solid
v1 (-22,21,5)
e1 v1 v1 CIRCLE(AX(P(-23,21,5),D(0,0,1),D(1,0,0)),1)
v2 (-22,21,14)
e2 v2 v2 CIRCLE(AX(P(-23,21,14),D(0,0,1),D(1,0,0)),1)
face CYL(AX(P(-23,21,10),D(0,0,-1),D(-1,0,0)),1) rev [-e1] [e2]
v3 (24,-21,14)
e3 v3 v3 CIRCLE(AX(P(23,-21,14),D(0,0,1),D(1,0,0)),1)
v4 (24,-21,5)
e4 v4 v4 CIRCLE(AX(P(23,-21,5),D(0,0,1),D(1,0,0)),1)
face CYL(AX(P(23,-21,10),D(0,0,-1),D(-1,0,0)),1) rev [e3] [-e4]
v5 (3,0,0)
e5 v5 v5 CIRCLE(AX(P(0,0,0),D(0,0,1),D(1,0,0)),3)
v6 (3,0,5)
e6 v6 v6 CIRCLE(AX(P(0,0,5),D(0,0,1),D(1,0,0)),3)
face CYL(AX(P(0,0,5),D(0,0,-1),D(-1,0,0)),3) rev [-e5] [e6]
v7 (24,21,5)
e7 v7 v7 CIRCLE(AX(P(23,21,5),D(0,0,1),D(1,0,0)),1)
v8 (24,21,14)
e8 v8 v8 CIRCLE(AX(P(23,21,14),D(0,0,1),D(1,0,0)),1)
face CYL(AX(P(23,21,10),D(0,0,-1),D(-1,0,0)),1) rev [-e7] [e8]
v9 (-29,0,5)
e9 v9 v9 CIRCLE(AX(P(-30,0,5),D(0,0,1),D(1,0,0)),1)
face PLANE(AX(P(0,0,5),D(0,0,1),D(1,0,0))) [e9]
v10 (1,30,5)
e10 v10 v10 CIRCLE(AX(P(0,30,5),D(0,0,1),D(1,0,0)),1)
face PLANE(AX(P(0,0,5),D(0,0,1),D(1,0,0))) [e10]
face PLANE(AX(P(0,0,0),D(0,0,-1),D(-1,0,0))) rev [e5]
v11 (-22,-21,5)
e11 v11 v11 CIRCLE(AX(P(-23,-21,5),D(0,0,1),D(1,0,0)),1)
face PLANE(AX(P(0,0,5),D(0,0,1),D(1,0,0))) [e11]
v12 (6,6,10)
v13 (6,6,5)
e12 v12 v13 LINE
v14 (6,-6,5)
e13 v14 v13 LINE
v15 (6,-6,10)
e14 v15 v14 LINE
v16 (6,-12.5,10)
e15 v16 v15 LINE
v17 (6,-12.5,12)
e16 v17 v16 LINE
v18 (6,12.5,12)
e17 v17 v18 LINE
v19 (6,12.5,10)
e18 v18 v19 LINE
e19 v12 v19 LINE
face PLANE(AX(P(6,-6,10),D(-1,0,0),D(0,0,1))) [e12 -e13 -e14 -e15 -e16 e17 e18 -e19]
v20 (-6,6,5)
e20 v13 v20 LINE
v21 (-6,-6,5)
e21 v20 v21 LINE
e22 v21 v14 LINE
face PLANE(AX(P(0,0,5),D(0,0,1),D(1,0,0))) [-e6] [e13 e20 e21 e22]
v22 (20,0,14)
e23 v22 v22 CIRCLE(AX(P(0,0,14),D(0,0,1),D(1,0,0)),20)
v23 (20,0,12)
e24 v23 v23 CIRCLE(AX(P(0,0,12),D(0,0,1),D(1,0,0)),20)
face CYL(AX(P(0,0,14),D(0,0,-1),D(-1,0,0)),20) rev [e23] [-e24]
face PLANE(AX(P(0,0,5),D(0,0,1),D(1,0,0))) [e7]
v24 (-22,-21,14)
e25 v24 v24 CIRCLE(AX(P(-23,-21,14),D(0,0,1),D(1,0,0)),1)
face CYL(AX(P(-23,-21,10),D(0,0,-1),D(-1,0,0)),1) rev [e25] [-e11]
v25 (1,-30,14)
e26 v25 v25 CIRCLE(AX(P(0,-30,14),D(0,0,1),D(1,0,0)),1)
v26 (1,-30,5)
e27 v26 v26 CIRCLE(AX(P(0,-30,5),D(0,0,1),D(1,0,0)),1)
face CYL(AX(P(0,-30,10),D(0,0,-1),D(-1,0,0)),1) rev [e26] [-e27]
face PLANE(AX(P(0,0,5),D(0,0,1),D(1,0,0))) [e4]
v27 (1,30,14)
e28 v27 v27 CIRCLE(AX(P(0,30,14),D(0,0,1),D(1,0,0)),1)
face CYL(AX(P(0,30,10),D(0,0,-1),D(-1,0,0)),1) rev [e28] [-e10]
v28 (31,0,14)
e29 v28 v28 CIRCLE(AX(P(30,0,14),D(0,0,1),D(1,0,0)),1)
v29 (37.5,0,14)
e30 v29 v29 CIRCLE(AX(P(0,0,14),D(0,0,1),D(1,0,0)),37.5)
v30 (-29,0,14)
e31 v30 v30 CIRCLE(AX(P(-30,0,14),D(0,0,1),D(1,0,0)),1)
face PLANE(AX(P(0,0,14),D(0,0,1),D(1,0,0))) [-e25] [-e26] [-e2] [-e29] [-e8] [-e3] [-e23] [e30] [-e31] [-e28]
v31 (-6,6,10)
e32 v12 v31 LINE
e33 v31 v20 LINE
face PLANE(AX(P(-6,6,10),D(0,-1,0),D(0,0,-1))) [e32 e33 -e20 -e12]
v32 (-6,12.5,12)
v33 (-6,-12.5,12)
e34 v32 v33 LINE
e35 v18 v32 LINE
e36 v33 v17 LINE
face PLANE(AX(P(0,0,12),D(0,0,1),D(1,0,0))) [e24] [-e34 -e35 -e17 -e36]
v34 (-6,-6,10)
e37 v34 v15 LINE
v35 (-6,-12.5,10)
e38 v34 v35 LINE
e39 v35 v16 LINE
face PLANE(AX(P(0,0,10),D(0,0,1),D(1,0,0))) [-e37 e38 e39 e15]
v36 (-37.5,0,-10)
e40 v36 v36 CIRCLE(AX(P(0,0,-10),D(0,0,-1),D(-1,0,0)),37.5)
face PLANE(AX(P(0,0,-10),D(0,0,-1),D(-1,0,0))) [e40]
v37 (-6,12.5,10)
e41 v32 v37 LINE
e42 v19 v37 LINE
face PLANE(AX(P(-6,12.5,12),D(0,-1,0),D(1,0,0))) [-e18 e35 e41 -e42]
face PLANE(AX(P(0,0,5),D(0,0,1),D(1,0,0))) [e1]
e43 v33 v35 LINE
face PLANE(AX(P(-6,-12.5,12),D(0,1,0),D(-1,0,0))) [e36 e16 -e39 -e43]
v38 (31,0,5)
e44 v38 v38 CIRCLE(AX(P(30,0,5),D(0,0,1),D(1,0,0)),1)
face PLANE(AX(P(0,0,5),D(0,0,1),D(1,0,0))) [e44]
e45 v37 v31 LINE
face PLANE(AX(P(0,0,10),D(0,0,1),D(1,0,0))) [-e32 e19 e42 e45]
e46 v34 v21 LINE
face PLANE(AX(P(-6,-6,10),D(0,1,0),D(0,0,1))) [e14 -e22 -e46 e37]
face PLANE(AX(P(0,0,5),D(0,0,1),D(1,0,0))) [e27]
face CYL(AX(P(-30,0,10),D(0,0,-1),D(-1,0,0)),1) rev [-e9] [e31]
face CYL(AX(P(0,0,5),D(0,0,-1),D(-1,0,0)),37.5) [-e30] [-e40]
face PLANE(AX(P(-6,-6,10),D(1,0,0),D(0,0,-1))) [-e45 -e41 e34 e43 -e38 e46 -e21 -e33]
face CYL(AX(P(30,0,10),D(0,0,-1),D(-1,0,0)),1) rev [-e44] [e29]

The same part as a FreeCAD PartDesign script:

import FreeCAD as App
import Part
import Sketcher


def add_polygon(sketch, points):
    """Adds a closed chain of lines whose ends are joined by coincident constraints."""
    first, n = sketch.GeometryCount, len(points)
    for a, b in zip(points, points[1:] + points[:1]):
        sketch.addGeometry(Part.LineSegment(App.Vector(*a, 0), App.Vector(*b, 0)), False)
    for i in range(n):
        sketch.addConstraint(Sketcher.Constraint("Coincident", first + i, 2, first + (i + 1) % n, 1))

doc = App.newDocument("Part")
body = doc.addObject("PartDesign::Body", "Body")

sketch1 = body.newObject("Sketcher::SketchObject", "Sketch")
sketch1.AttachmentSupport = (doc.getObject("XY_Plane"), [""])
sketch1.MapMode = "FlatFace"
sketch1.addGeometry([
    Part.Circle(App.Vector(0, 0, 0), App.Vector(0, 0, 1), 37.5),
    Part.Circle(App.Vector(0, 0, 0), App.Vector(0, 0, 1), 3),
], False)
sketch1.addConstraint([
    Sketcher.Constraint("Coincident", 0, 3, -1, 1),
    Sketcher.Constraint("Coincident", 1, 3, -1, 1),
    Sketcher.Constraint("Diameter", 0, 75.0),
    Sketcher.Constraint("Diameter", 1, 6.0),
])
pad1 = body.newObject("PartDesign::Pad", "Pad")
pad1.Profile = sketch1
pad1.Length = 5

sketch2 = body.newObject("Sketcher::SketchObject", "Sketch001")
sketch2.AttachmentSupport = (doc.getObject("XY_Plane"), [""])
sketch2.MapMode = "FlatFace"
sketch2.AttachmentOffset = App.Placement(App.Vector(0, 0, -10), App.Rotation())
sketch2.addGeometry(Part.Circle(App.Vector(0, 0, 0), App.Vector(0, 0, 1), 38), False)
sketch2.addConstraint([
    Sketcher.Constraint("Coincident", 0, 3, -1, 1),
    Sketcher.Constraint("Diameter", 0, 75.0),
])
pad2 = body.newObject("PartDesign::Pad", "Pad001")
pad2.Profile = sketch2
pad2.Length = 10

sketch3 = body.newObject("Sketcher::SketchObject", "Sketch002")
sketch3.AttachmentSupport = (doc.getObject("XY_Plane"), [""])
sketch3.MapMode = "FlatFace"
sketch3.AttachmentOffset = App.Placement(App.Vector(0, 0, 5), App.Rotation())
sketch3.addGeometry(Part.Circle(App.Vector(0, 0, 0), App.Vector(0, 0, 1), 37.5), False)
sketch3.addGeometry(Part.Circle(App.Vector(23, 21, 0), App.Vector(0, 0, 1), 1), False)
sketch3.addGeometry(Part.Circle(App.Vector(30, 0, 0), App.Vector(0, 0, 1), 1), False)
sketch3.addGeometry(Part.Circle(App.Vector(0, 30, 0), App.Vector(0, 0, 1), 1), False)
sketch3.addGeometry(Part.Circle(App.Vector(-23, 21, 0), App.Vector(0, 0, 1), 1), False)
sketch3.addGeometry(Part.Circle(App.Vector(23, -21, 0), App.Vector(0, 0, 1), 1), False)
sketch3.addGeometry(Part.Circle(App.Vector(0, -30, 0), App.Vector(0, 0, 1), 1), False)
add_polygon(sketch3, [(6, -6), (-6, -6), (-6, 6), (6, 6)])
sketch3.addGeometry(Part.Circle(App.Vector(-30, 0, 0), App.Vector(0, 0, 1), 1), False)
sketch3.addGeometry(Part.Circle(App.Vector(-23, -21, 0), App.Vector(0, 0, 1), 1), False)
sketch3.addConstraint([
    Sketcher.Constraint("Horizontal", 7),
    Sketcher.Constraint("Vertical", 8),
    Sketcher.Constraint("Horizontal", 9),
    Sketcher.Constraint("Vertical", 10),
    Sketcher.Constraint("Coincident", 0, 3, -1, 1),
    Sketcher.Constraint("Equal", 1, 2),
    Sketcher.Constraint("Equal", 2, 3),
    Sketcher.Constraint("Equal", 3, 4),
    Sketcher.Constraint("Equal", 4, 5),
    Sketcher.Constraint("Equal", 5, 6),
    Sketcher.Constraint("Equal", 6, 11),
    Sketcher.Constraint("Equal", 11, 12),
    Sketcher.Constraint("Symmetric", 4, 3, 5, 3, -1, 1),
    Sketcher.Constraint("Symmetric", 3, 3, 6, 3, -1, 1),
    Sketcher.Constraint("Symmetric", 2, 3, 11, 3, -1, 1),
    Sketcher.Constraint("Symmetric", 1, 3, 12, 3, -1, 1),
    Sketcher.Constraint("Symmetric", 7, 2, 9, 2, -1, 1),
    Sketcher.Constraint("Symmetric", 1, 3, 4, 3, -2),
    Sketcher.Constraint("PointOnObject", 2, 3, -1),
    Sketcher.Constraint("PointOnObject", 3, 3, -2),
    Sketcher.Constraint("Equal", 9, 8),
    Sketcher.Constraint("Diameter", 0, 75.0),
    Sketcher.Constraint("Diameter", 1, 2.0),
    Sketcher.Constraint("DistanceX", 7, 2, 7, 1, 12.0),
    Sketcher.Constraint("DistanceX", -1, 1, 1, 3, 23.0),
    Sketcher.Constraint("DistanceY", -1, 1, 1, 3, 21.0),
    Sketcher.Constraint("DistanceX", -1, 1, 2, 3, 30.0),
    Sketcher.Constraint("DistanceY", -1, 1, 3, 3, 30.0),
])
pad3 = body.newObject("PartDesign::Pad", "Pad002")
pad3.Profile = sketch3
pad3.Length = 5

sketch4 = body.newObject("Sketcher::SketchObject", "Sketch003")
sketch4.AttachmentSupport = (doc.getObject("XY_Plane"), [""])
sketch4.MapMode = "FlatFace"
sketch4.AttachmentOffset = App.Placement(App.Vector(0, 0, 10), App.Rotation())
sketch4.addGeometry(Part.Circle(App.Vector(0, 0, 0), App.Vector(0, 0, 1), 37.5), False)
sketch4.addGeometry(Part.Circle(App.Vector(23, 21, 0), App.Vector(0, 0, 1), 1), False)
sketch4.addGeometry(Part.Circle(App.Vector(30, 0, 0), App.Vector(0, 0, 1), 1), False)
sketch4.addGeometry(Part.Circle(App.Vector(0, 30, 0), App.Vector(0, 0, 1), 1), False)
sketch4.addGeometry(Part.Circle(App.Vector(-23, 21, 0), App.Vector(0, 0, 1), 1), False)
sketch4.addGeometry(Part.Circle(App.Vector(23, -21, 0), App.Vector(0, 0, 1), 1), False)
sketch4.addGeometry(Part.Circle(App.Vector(0, -30, 0), App.Vector(0, 0, 1), 1), False)
add_polygon(sketch4, [(6, -12.5), (-6, -12.5), (-6, 12.5), (6, 12.5)])
sketch4.addGeometry(Part.Circle(App.Vector(-30, 0, 0), App.Vector(0, 0, 1), 1), False)
sketch4.addGeometry(Part.Circle(App.Vector(-23, -21, 0), App.Vector(0, 0, 1), 1), False)
sketch4.addConstraint([
    Sketcher.Constraint("Horizontal", 7),
    Sketcher.Constraint("Vertical", 8),
    Sketcher.Constraint("Horizontal", 9),
    Sketcher.Constraint("Vertical", 10),
    Sketcher.Constraint("Coincident", 0, 3, -1, 1),
    Sketcher.Constraint("Equal", 1, 2),
    Sketcher.Constraint("Equal", 2, 3),
    Sketcher.Constraint("Equal", 3, 4),
    Sketcher.Constraint("Equal", 4, 5),
    Sketcher.Constraint("Equal", 5, 6),
    Sketcher.Constraint("Equal", 6, 11),
    Sketcher.Constraint("Equal", 11, 12),
    Sketcher.Constraint("Symmetric", 4, 3, 5, 3, -1, 1),
    Sketcher.Constraint("Symmetric", 3, 3, 6, 3, -1, 1),
    Sketcher.Constraint("Symmetric", 2, 3, 11, 3, -1, 1),
    Sketcher.Constraint("Symmetric", 1, 3, 12, 3, -1, 1),
    Sketcher.Constraint("Symmetric", 7, 2, 9, 2, -1, 1),
    Sketcher.Constraint("Symmetric", 1, 3, 4, 3, -2),
    Sketcher.Constraint("PointOnObject", 2, 3, -1),
    Sketcher.Constraint("PointOnObject", 3, 3, -2),
    Sketcher.Constraint("Diameter", 0, 75.0),
    Sketcher.Constraint("Diameter", 1, 2.0),
    Sketcher.Constraint("DistanceX", 7, 2, 7, 1, 12.0),
    Sketcher.Constraint("DistanceY", 8, 1, 8, 2, 25.0),
    Sketcher.Constraint("DistanceX", -1, 1, 1, 3, 23.0),
    Sketcher.Constraint("DistanceY", -1, 1, 1, 3, 21.0),
    Sketcher.Constraint("DistanceX", -1, 1, 2, 3, 30.0),
    Sketcher.Constraint("DistanceY", -1, 1, 3, 3, 30.0),
])
pad4 = body.newObject("PartDesign::Pad", "Pad003")
pad4.Profile = sketch4
pad4.Length = 2

sketch5 = body.newObject("Sketcher::SketchObject", "Sketch004")
sketch5.AttachmentSupport = (doc.getObject("XY_Plane"), [""])
sketch5.MapMode = "FlatFace"
sketch5.AttachmentOffset = App.Placement(App.Vector(0, 0, 12), App.Rotation())
sketch5.addGeometry([
    Part.Circle(App.Vector(0, 0, 0), App.Vector(0, 0, 1), 37.5),
    Part.Circle(App.Vector(23, 21, 0), App.Vector(0, 0, 1), 1),
    Part.Circle(App.Vector(30, 0, 0), App.Vector(0, 0, 1), 1),
    Part.Circle(App.Vector(0, 30, 0), App.Vector(0, 0, 1), 1),
    Part.Circle(App.Vector(-23, 21, 0), App.Vector(0, 0, 1), 1),
    Part.Circle(App.Vector(23, -21, 0), App.Vector(0, 0, 1), 1),
    Part.Circle(App.Vector(0, -30, 0), App.Vector(0, 0, 1), 1),
    Part.Circle(App.Vector(0, 0, 0), App.Vector(0, 0, 1), 20),
    Part.Circle(App.Vector(-30, 0, 0), App.Vector(0, 0, 1), 1),
    Part.Circle(App.Vector(-23, -21, 0), App.Vector(0, 0, 1), 1),
], False)
sketch5.addConstraint([
    Sketcher.Constraint("Coincident", 0, 3, -1, 1),
    Sketcher.Constraint("Coincident", 7, 3, -1, 1),
    Sketcher.Constraint("Equal", 1, 2),
    Sketcher.Constraint("Equal", 2, 3),
    Sketcher.Constraint("Equal", 3, 4),
    Sketcher.Constraint("Equal", 4, 5),
    Sketcher.Constraint("Equal", 5, 6),
    Sketcher.Constraint("Equal", 6, 8),
    Sketcher.Constraint("Equal", 8, 9),
    Sketcher.Constraint("Symmetric", 4, 3, 5, 3, -1, 1),
    Sketcher.Constraint("Symmetric", 3, 3, 6, 3, -1, 1),
    Sketcher.Constraint("Symmetric", 2, 3, 8, 3, -1, 1),
    Sketcher.Constraint("Symmetric", 1, 3, 9, 3, -1, 1),
    Sketcher.Constraint("Symmetric", 1, 3, 4, 3, -2),
    Sketcher.Constraint("PointOnObject", 2, 3, -1),
    Sketcher.Constraint("PointOnObject", 3, 3, -2),
    Sketcher.Constraint("Diameter", 0, 75.0),
    Sketcher.Constraint("Diameter", 1, 2.0),
    Sketcher.Constraint("Diameter", 7, 40.0),
    Sketcher.Constraint("DistanceX", -1, 1, 1, 3, 23.0),
    Sketcher.Constraint("DistanceY", -1, 1, 1, 3, 21.0),
    Sketcher.Constraint("DistanceX", -1, 1, 2, 3, 30.0),
    Sketcher.Constraint("DistanceY", -1, 1, 3, 3, 30.0),
])
pad5 = body.newObject("PartDesign::Pad", "Pad004")
pad5.Profile = sketch5
pad5.Length = 2

doc.recompute()
